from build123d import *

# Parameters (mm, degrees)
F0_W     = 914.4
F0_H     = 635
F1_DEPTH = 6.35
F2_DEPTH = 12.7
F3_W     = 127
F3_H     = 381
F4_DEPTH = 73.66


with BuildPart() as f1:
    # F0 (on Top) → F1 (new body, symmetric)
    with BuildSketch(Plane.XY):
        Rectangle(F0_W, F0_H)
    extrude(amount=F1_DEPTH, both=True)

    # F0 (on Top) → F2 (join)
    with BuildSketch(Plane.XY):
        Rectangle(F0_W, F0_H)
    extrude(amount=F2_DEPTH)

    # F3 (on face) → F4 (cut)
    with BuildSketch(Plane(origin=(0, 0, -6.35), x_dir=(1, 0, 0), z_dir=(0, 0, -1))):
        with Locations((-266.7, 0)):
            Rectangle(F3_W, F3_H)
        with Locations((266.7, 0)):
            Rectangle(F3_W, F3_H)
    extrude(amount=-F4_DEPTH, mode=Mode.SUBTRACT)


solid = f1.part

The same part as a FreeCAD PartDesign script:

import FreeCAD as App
import Part
import Sketcher

V = App.Vector
Q = App.Units.Quantity


def add_polygon(sketch, points):
    """Adds a closed chain of lines whose ends are joined by coincident constraints."""
    first, n = sketch.GeometryCount, len(points)
    for a, b in zip(points, points[1:] + points[:1]):
        sketch.addGeometry(Part.LineSegment(App.Vector(*a, 0), App.Vector(*b, 0)), False)
    for i in range(n):
        sketch.addConstraint(Sketcher.Constraint("Coincident", first + i, 2, first + (i + 1) % n, 1))

doc = App.newDocument("Part")
body = doc.addObject("PartDesign::Body", "Body")

# Sketch on XY plane
sketch1 = doc.addObject("Sketcher::SketchObject", "Sketch")
body.addObject(sketch1)
sketch1.AttachmentSupport = (doc.XY_Plane, [""])
sketch1.MapMode = "FlatFace"
add_polygon(sketch1, [(-457, 318), (-457, -318), (457, -318), (457, 318)])  # lines 0-3
sketch1.addConstraint(Sketcher.Constraint("Vertical", 0))
sketch1.addConstraint(Sketcher.Constraint("Horizontal", 1))
sketch1.addConstraint(Sketcher.Constraint("Vertical", 2))
sketch1.addConstraint(Sketcher.Constraint("Horizontal", 3))
sketch1.addConstraint(Sketcher.Constraint("Symmetric", 0, 2, 2, 2, -1, 1))
sketch1.addConstraint(Sketcher.Constraint("DistanceX", 1, 1, 1, 2, Q("36 in")))
sketch1.addConstraint(Sketcher.Constraint("DistanceY", 0, 2, 0, 1, Q("25 in")))
pad1 = doc.addObject("PartDesign::Pad", "Pad")
body.addObject(pad1)
pad1.Profile = sketch1
pad1.Length = Q("0.5 in")
pad1.Midplane = True

# Sketch on XY plane
sketch2 = doc.addObject("Sketcher::SketchObject", "Sketch001")
body.addObject(sketch2)
sketch2.AttachmentSupport = (doc.XY_Plane, [""])
sketch2.MapMode = "FlatFace"
add_polygon(sketch2, [(-457, 318), (-457, -318), (457, -318), (457, 318)])  # lines 0-3
sketch2.addConstraint(Sketcher.Constraint("Vertical", 0))
sketch2.addConstraint(Sketcher.Constraint("Horizontal", 1))
sketch2.addConstraint(Sketcher.Constraint("Vertical", 2))
sketch2.addConstraint(Sketcher.Constraint("Horizontal", 3))
sketch2.addConstraint(Sketcher.Constraint("Symmetric", 0, 2, 2, 2, -1, 1))
sketch2.addConstraint(Sketcher.Constraint("DistanceX", 1, 1, 1, 2, Q("36 in")))
sketch2.addConstraint(Sketcher.Constraint("DistanceY", 0, 2, 0, 1, Q("25 in")))
pad2 = doc.addObject("PartDesign::Pad", "Pad001")
body.addObject(pad2)
pad2.Profile = sketch2
pad2.Length = Q("0.5 in")

# Sketch on XY plane
sketch3 = doc.addObject("Sketcher::SketchObject", "Sketch002")
body.addObject(sketch3)
sketch3.AttachmentSupport = (doc.XY_Plane, [""])
sketch3.MapMode = "FlatFace"
sketch3.AttachmentOffset = App.Placement(V(0, 0, -0.25 * 25.4), App.Rotation())
add_polygon(sketch3, [(-330, -190), (-330, 190), (-203, 190), (-203, -190)])  # lines 0-3
add_polygon(sketch3, [(203, -190), (203, 190), (330, 190), (330, -190)])  # lines 4-7
sketch3.addConstraint(Sketcher.Constraint("Vertical", 0))
sketch3.addConstraint(Sketcher.Constraint("Horizontal", 1))
sketch3.addConstraint(Sketcher.Constraint("Vertical", 2))
sketch3.addConstraint(Sketcher.Constraint("Horizontal", 3))
sketch3.addConstraint(Sketcher.Constraint("Vertical", 4))
sketch3.addConstraint(Sketcher.Constraint("Horizontal", 5))
sketch3.addConstraint(Sketcher.Constraint("Vertical", 6))
sketch3.addConstraint(Sketcher.Constraint("Horizontal", 7))
sketch3.addConstraint(Sketcher.Constraint("Symmetric", 2, 2, 4, 2, -1, 1))
sketch3.addConstraint(Sketcher.Constraint("Symmetric", 0, 2, 6, 2, -1, 1))
sketch3.addConstraint(Sketcher.Constraint("Horizontal", 1, 2, 4, 2))
sketch3.addConstraint(Sketcher.Constraint("DistanceX", 1, 1, 1, 2, Q("5 in")))
sketch3.addConstraint(Sketcher.Constraint("DistanceY", 0, 1, 0, 2, Q("15 in")))
sketch3.addConstraint(Sketcher.Constraint("DistanceX", 0, 2, -1, 1, Q("13 in")))
pocket1 = doc.addObject("PartDesign::Pocket", "Pocket")
body.addObject(pocket1)
pocket1.Profile = sketch3
pocket1.Length = Q("2.9 in")
pocket1.Reversed = True

doc.recompute()
